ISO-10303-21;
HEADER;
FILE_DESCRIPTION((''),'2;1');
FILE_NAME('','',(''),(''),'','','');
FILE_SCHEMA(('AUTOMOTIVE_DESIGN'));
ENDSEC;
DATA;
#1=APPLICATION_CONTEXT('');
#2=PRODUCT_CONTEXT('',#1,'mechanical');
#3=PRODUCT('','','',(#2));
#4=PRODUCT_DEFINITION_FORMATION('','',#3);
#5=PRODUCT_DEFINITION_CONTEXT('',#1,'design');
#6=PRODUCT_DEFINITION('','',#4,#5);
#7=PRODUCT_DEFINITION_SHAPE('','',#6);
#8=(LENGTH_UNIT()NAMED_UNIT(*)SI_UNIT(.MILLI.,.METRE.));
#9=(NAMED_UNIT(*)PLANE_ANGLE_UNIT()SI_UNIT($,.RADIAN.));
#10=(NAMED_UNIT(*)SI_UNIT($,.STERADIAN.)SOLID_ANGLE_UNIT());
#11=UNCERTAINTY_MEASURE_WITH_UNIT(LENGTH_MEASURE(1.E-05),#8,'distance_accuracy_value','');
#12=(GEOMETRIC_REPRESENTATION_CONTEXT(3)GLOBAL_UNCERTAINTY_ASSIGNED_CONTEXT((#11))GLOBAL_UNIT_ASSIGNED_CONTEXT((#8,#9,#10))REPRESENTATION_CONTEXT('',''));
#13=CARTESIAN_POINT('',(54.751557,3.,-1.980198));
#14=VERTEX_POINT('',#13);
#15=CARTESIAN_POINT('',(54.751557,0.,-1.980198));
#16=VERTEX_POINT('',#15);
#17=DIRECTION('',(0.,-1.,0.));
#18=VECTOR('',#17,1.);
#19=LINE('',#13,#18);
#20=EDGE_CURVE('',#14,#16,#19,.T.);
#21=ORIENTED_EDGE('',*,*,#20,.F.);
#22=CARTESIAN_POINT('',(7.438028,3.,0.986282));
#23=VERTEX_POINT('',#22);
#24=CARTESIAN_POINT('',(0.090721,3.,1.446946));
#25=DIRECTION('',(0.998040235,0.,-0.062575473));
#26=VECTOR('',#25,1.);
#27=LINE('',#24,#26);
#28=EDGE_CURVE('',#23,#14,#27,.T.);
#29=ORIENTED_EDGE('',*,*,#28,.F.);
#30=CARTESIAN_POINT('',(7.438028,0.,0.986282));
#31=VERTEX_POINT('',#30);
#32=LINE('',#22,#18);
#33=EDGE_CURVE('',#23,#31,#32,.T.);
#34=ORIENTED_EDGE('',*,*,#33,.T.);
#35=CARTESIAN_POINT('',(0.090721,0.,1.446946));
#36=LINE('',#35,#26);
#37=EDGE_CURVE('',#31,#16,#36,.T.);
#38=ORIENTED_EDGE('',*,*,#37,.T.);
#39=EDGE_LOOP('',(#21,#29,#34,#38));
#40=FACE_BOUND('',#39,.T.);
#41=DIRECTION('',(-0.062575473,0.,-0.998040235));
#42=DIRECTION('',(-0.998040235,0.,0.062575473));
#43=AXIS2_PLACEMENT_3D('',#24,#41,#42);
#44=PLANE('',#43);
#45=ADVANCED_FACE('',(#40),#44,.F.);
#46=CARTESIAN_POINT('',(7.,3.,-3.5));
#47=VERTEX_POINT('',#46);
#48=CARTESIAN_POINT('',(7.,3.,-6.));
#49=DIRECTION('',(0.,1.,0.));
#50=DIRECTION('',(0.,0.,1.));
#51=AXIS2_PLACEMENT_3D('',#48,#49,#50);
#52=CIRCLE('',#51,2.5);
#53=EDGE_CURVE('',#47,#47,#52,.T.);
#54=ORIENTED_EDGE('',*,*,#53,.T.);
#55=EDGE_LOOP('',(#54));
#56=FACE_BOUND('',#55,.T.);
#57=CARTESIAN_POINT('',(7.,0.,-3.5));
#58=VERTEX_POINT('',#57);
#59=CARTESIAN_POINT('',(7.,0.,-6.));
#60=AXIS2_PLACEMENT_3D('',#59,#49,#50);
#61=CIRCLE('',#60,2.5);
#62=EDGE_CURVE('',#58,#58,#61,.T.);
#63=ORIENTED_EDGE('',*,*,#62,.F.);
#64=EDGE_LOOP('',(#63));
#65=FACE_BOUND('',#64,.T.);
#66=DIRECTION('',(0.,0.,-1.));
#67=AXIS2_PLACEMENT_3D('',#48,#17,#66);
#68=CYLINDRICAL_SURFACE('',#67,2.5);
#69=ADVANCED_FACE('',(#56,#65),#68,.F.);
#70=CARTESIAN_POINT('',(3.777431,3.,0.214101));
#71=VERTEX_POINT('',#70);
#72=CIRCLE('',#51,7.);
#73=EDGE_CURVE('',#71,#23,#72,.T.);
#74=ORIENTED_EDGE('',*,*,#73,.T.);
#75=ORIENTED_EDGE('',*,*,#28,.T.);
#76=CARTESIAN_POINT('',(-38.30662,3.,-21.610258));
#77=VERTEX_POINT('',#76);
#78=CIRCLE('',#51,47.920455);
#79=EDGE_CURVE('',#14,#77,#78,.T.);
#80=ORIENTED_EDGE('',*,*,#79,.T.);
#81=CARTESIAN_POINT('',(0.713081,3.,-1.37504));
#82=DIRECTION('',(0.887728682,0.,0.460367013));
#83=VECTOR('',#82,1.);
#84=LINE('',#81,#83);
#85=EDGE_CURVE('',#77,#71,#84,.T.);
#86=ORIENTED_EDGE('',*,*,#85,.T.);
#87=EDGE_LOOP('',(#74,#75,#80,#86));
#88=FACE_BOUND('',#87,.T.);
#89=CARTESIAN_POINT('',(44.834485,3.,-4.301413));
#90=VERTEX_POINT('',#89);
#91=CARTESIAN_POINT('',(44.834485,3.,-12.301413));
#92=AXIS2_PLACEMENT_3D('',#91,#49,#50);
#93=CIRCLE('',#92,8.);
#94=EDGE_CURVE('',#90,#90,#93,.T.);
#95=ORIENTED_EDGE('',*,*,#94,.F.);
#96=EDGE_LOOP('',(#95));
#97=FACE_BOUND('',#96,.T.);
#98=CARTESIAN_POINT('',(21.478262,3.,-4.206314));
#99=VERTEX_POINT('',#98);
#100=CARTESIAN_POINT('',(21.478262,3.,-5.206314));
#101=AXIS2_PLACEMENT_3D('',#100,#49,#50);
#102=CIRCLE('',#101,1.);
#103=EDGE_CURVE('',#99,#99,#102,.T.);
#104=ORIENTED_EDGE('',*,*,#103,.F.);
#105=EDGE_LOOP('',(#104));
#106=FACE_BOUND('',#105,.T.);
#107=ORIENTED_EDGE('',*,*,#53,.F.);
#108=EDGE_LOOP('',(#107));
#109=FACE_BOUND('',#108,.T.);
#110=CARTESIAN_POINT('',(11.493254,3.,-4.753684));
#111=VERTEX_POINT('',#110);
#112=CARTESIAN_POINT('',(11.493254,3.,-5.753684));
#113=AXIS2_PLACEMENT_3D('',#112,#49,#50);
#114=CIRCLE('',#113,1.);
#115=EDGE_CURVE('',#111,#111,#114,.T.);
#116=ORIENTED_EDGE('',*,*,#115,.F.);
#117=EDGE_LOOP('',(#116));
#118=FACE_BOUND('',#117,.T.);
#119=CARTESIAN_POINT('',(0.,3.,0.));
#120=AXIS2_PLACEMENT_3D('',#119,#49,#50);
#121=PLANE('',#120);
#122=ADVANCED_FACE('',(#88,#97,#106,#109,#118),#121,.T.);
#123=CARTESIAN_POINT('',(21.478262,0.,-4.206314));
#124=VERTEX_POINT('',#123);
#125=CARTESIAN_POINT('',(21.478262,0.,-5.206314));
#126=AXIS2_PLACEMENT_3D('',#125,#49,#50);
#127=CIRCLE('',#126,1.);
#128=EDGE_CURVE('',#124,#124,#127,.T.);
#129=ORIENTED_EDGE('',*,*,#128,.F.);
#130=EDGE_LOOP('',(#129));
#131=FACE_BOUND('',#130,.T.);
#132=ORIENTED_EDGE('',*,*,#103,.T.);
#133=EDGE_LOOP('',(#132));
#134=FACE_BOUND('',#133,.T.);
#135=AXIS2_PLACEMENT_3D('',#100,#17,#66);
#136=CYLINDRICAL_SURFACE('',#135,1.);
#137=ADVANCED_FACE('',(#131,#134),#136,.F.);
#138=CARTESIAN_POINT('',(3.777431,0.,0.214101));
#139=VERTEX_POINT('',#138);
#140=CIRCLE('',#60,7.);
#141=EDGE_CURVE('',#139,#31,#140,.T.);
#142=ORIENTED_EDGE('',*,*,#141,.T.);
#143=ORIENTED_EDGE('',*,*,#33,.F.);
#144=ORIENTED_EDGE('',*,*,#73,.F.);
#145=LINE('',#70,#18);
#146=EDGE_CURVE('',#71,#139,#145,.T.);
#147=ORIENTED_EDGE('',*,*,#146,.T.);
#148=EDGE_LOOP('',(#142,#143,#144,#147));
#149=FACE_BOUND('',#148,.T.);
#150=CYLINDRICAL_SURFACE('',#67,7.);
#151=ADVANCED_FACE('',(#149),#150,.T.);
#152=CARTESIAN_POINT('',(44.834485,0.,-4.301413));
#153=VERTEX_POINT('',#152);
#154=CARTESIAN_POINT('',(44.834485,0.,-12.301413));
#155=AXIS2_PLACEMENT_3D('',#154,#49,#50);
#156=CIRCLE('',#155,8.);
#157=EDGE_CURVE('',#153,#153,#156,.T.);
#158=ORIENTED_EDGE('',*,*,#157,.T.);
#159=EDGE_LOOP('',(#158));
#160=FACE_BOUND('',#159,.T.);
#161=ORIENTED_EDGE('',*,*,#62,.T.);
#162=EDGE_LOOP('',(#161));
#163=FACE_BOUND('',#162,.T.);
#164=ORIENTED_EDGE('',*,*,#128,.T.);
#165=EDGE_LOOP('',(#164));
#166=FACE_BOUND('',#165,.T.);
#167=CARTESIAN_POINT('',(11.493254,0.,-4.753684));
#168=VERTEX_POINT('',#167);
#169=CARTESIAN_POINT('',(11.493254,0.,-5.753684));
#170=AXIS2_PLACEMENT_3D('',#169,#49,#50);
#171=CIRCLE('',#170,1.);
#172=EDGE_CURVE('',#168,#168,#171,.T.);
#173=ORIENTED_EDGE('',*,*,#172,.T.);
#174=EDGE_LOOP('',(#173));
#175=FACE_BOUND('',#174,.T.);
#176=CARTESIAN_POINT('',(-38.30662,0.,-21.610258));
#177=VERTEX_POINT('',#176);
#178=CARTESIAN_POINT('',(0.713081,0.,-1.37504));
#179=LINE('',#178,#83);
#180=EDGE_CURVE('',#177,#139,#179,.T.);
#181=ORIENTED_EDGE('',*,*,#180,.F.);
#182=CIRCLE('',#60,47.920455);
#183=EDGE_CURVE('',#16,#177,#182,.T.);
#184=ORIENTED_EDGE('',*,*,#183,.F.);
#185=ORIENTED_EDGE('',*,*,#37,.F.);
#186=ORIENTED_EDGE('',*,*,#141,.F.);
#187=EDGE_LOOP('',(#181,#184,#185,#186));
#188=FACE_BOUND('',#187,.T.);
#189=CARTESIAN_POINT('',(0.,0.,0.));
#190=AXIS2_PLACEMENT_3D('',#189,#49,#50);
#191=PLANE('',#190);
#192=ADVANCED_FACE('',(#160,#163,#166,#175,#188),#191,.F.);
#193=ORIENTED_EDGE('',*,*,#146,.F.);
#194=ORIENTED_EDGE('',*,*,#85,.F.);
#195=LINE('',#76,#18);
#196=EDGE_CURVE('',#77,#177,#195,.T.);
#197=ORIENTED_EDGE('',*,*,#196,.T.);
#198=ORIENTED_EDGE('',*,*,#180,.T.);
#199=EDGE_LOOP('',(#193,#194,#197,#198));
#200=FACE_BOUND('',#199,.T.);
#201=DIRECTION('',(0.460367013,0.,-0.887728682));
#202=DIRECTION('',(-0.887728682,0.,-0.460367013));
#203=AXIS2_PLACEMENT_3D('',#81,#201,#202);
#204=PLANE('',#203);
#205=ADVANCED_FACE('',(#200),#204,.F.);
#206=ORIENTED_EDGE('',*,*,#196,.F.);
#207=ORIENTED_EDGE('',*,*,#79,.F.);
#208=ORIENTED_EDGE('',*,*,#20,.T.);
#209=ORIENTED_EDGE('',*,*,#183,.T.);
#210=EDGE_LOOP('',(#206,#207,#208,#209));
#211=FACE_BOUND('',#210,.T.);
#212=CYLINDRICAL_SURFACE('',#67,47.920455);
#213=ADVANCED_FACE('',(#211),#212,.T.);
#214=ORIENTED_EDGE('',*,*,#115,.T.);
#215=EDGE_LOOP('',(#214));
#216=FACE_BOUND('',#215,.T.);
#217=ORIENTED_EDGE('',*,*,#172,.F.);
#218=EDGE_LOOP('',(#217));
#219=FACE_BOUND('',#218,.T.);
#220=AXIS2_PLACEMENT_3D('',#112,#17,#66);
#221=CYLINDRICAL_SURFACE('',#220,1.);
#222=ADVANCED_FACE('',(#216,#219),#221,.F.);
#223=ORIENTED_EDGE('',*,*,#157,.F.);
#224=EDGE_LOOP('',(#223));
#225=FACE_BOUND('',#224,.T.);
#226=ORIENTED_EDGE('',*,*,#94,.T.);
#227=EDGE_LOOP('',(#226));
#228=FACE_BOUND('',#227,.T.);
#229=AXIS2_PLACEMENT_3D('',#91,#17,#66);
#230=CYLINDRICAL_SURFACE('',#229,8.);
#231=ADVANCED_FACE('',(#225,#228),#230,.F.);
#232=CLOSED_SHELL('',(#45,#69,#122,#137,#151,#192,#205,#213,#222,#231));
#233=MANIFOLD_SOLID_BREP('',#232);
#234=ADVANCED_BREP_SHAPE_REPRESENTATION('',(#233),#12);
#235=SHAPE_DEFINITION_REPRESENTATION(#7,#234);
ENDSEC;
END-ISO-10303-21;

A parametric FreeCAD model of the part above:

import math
import FreeCAD as App
import Part
import Sketcher

doc = App.newDocument("Part")
body = doc.addObject("PartDesign::Body", "Body")

sketch1 = body.newObject("Sketcher::SketchObject", "Sketch")
sketch1.AttachmentSupport = (doc.getObject("XZ_Plane"), [""])
sketch1.MapMode = "FlatFace"
sketch1.addGeometry([
    Part.LineSegment(App.Vector(-38.30662, -21.610258, 0), App.Vector(3.777431, 0.214101, 0)),
    Part.ArcOfCircle(Part.Circle(App.Vector(7, -6, 0), App.Vector(0, 0, 1), 7), math.radians(86.412346), math.radians(117.410793)),
    Part.LineSegment(App.Vector(7.438028, 0.986282, 0), App.Vector(54.751557, -1.980198, 0)),
    Part.ArcOfCircle(Part.Circle(App.Vector(7, -6, 0), App.Vector(0, 0, 1), 47.920455), math.radians(-160.988766), math.radians(4.811904)),
    Part.Circle(App.Vector(7, -6, 0), App.Vector(0, 0, 1), 2.5),
    Part.Circle(App.Vector(11.493254, -5.753684, 0), App.Vector(0, 0, 1), 1),
    Part.Circle(App.Vector(21.478262, -5.206314, 0), App.Vector(0, 0, 1), 1),
    Part.Circle(App.Vector(44.834485, -12.301413, 0), App.Vector(0, 0, 1), 8),
], False)
sketch1.addConstraint([
    Sketcher.Constraint("Tangent", 0, 2, 1, 2),
    Sketcher.Constraint("Tangent", 1, 1, 2, 1),
    Sketcher.Constraint("Coincident", 2, 2, 3, 2),
    Sketcher.Constraint("Coincident", 3, 1, 0, 1),
    Sketcher.Constraint("Coincident", 3, 3, 1, 3),
    Sketcher.Constraint("Coincident", 4, 3, 1, 3),
    Sketcher.Constraint("Equal", 5, 6),
    Sketcher.Constraint("Diameter", 4, 5.0),
    Sketcher.Constraint("Diameter", 5, 2.0),
    Sketcher.Constraint("Diameter", 7, 16.0),
    Sketcher.Constraint("Radius", 1, 7.0),
    Sketcher.Constraint("DistanceX", -1, 1, 1, 3, 7.0),
    Sketcher.Constraint("DistanceY", 1, 3, -1, 1, 6.0),
    Sketcher.Constraint("Radius", 3, 47.920455),
    Sketcher.Constraint("DistanceY", -1, 1, 0, 2, 0.214101),
    Sketcher.Constraint("DistanceY", 2, 2, -1, 1, 1.980198),
    Sketcher.Constraint("DistanceY", 7, 3, 6, 3, 7.095099),
    Sketcher.Constraint("DistanceX", -1, 1, 6, 3, 21.478262),
    Sketcher.Constraint("DistanceX", 5, 3, 6, 3, 9.985008),
    Sketcher.Constraint("DistanceY", 5, 3, 6, 3, 0.54737),
    Sketcher.Constraint("DistanceX", 5, 3, 7, 3, 33.341231),
    Sketcher.Constraint("DistanceY", 5, 3, -1, 1, 5.753684),
])
pad1 = body.newObject("PartDesign::Pad", "Pad")
pad1.Profile = sketch1
pad1.Length = 3
pad1.Reversed = True

doc.recompute()
